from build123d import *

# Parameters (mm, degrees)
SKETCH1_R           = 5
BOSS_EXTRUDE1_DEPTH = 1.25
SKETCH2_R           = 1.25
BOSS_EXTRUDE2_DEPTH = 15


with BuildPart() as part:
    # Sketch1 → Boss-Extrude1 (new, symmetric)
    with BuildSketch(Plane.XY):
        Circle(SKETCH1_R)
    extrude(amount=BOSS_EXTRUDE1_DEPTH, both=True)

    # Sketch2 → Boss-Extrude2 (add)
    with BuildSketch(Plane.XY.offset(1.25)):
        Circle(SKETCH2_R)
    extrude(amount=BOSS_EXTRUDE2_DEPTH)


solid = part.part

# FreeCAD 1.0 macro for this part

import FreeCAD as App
import Part
import Sketcher
Q = App.Units.Quantity

doc = App.newDocument("Part")
body = doc.addObject("PartDesign::Body", "Body")

# Sketch on XY plane
sketch1 = body.newObject("Sketcher::SketchObject", "Sketch")
sketch1.AttachmentSupport = (doc.getObject("XY_Plane"), [""])
sketch1.MapMode = "FlatFace"
sketch1.addGeometry(Part.Circle(App.Vector(0, 0, 0), App.Vector(0, 0, 1), 5), False)
sketch1.addConstraint(Sketcher.Constraint("Coincident", 0, 3, -1, 1))
sketch1.addConstraint(Sketcher.Constraint("Diameter", 0, Q("10 mm")))
pad1 = body.newObject("PartDesign::Pad", "Pad")
pad1.Profile = sketch1
pad1.Length = 2.5
pad1.Midplane = True

# Sketch on XY plane
sketch2 = body.newObject("Sketcher::SketchObject", "Sketch001")
sketch2.AttachmentSupport = (doc.getObject("XY_Plane"), [""])
sketch2.MapMode = "FlatFace"
sketch2.AttachmentOffset = App.Placement(App.Vector(0, 0, 1.25), App.Rotation())
sketch2.addGeometry(Part.Circle(App.Vector(0, 0, 0), App.Vector(0, 0, 1), 1.2), False)
sketch2.addConstraint(Sketcher.Constraint("Coincident", 0, 3, -1, 1))
sketch2.addConstraint(Sketcher.Constraint("Diameter", 0, Q("2.5 mm")))
pad2 = body.newObject("PartDesign::Pad", "Pad001")
pad2.Profile = sketch2
pad2.Length = 15

doc.recompute()
